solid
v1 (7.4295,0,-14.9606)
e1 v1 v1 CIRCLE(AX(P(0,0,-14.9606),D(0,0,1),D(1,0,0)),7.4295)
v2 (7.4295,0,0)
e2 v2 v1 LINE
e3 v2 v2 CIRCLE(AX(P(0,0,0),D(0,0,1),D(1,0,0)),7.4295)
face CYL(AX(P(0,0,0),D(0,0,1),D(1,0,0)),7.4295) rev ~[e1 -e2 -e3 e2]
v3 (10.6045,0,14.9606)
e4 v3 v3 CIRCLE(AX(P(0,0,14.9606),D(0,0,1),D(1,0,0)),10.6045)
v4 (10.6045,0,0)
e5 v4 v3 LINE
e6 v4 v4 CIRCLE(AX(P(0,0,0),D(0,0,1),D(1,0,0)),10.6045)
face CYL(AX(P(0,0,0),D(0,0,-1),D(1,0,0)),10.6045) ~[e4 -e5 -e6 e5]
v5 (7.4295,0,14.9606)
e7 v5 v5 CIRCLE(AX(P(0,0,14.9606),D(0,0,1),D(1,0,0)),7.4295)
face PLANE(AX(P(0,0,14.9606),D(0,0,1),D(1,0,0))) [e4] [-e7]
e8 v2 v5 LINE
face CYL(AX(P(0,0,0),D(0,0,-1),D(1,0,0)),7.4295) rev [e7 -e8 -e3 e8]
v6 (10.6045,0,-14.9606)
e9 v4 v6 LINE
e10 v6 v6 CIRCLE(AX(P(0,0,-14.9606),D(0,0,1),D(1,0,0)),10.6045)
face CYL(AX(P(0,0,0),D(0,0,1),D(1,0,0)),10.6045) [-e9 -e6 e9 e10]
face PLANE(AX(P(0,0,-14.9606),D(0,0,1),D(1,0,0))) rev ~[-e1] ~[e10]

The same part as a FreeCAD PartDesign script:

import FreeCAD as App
import Part
import Sketcher
Q = App.Units.Quantity

doc = App.newDocument("Part")
body = doc.addObject("PartDesign::Body", "Body")

sketch1 = doc.addObject("Sketcher::SketchObject", "Sketch")
body.addObject(sketch1)
sketch1.AttachmentSupport = (doc.XY_Plane, [""])
sketch1.MapMode = "FlatFace"
sketch1.addGeometry([
    Part.Circle(App.Vector(0, 0, 0), App.Vector(0, 0, 1), 11),
    Part.Circle(App.Vector(0, 0, 0), App.Vector(0, 0, 1), 7),
], False)
sketch1.addConstraint([
    Sketcher.Constraint("Coincident", 0, 3, -1, 1),
    Sketcher.Constraint("Coincident", 1, 3, -1, 1),
    Sketcher.Constraint("Diameter", 1, Q("0.585 in")),
    Sketcher.Constraint("Diameter", 0, Q("0.835 in")),
])
pad1 = doc.addObject("PartDesign::Pad", "Pad")
body.addObject(pad1)
pad1.Profile = sketch1
pad1.Length = Q("1.178 in")
pad1.Midplane = True

doc.recompute()
